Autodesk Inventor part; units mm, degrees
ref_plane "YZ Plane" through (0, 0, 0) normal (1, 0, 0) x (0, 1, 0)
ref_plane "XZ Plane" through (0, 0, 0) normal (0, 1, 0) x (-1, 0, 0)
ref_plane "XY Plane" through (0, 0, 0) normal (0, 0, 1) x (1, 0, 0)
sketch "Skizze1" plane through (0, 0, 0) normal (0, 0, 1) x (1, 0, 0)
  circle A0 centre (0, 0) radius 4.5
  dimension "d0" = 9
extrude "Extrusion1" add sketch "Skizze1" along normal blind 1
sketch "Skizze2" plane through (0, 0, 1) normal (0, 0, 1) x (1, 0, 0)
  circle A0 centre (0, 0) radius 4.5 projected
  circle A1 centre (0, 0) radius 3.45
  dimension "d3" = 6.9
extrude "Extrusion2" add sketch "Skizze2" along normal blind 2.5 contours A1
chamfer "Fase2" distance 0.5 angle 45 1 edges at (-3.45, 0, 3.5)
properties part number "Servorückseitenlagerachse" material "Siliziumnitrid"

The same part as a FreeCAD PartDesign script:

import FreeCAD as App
import Part
import Sketcher
from FreeCAD import Vector


def edges_at(feature, points):
    """Names of the edges that pass closest to the given points."""
    edges = feature.Shape.Edges
    near = lambda p: min(range(len(edges)), key=lambda i: edges[i].distToShape(Part.Vertex(*p))[0])
    return sorted({f"Edge{near(p) + 1}" for p in points})

doc = App.newDocument("Part")
body = doc.addObject("PartDesign::Body", "Body")

# Sketch on XY plane
sketch1 = body.newObject("Sketcher::SketchObject", "Sketch")
sketch1.AttachmentSupport = (doc.getObject("XY_Plane"), [""])
sketch1.MapMode = "FlatFace"
sketch1.addGeometry(Part.Circle(Vector(0, 0, 0), Vector(0, 0, 1), 4.5), False)
sketch1.addConstraint(Sketcher.Constraint("Coincident", 0, 3, -1, 1))
sketch1.addConstraint(Sketcher.Constraint("Diameter", 0, 9.0))
pad1 = body.newObject("PartDesign::Pad", "Pad")
pad1.Profile = sketch1
pad1.Length = 1

# Sketch on XY plane
sketch2 = body.newObject("Sketcher::SketchObject", "Sketch001")
sketch2.AttachmentSupport = (doc.getObject("XY_Plane"), [""])
sketch2.MapMode = "FlatFace"
sketch2.AttachmentOffset = App.Placement(Vector(0, 0, 1), App.Rotation())
sketch2.addGeometry(Part.Circle(Vector(0, 0, 0), Vector(0, 0, 1), 3.5), False)
sketch2.addConstraint(Sketcher.Constraint("Coincident", 0, 3, -1, 1))
sketch2.addConstraint(Sketcher.Constraint("Diameter", 0, 6.9))
pad2 = body.newObject("PartDesign::Pad", "Pad001")
pad2.Profile = sketch2
pad2.Length = 2.5
doc.recompute()

chamfer = body.newObject("PartDesign::Chamfer", "Chamfer")
chamfer.Base = (pad2, edges_at(pad2, [(-3.45, 0, 3.5)]))
chamfer.Size = 0.5

doc.recompute()
